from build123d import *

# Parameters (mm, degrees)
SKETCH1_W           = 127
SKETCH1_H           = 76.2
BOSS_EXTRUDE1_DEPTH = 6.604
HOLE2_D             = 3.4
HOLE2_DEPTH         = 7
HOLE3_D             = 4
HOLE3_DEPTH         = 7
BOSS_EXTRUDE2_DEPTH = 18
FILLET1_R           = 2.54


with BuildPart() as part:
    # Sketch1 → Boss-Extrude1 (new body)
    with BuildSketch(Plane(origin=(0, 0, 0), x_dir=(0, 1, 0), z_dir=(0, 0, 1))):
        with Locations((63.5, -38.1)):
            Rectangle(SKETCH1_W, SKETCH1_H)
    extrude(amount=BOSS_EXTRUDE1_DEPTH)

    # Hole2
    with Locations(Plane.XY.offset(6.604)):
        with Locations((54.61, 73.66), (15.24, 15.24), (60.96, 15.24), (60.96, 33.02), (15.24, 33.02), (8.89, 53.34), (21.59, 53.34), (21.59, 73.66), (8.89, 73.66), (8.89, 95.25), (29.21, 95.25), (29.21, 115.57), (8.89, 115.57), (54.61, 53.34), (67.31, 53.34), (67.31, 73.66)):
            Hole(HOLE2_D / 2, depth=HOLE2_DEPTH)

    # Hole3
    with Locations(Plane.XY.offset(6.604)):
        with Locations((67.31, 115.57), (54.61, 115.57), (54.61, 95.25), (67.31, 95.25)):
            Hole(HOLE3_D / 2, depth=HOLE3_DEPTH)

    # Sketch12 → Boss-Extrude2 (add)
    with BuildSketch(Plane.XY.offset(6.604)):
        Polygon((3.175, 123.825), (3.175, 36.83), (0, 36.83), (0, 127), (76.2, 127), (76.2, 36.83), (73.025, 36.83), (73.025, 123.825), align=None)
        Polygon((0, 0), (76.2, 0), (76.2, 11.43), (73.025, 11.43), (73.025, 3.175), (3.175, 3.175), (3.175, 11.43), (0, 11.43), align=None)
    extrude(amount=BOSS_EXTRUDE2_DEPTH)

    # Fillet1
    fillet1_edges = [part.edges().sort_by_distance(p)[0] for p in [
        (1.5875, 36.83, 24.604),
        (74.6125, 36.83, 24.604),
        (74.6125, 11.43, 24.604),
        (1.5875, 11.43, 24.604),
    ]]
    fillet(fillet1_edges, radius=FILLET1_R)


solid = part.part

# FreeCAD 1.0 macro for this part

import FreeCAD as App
import Part
import Sketcher

V = App.Vector
Q = App.Units.Quantity


def edges_at(feature, points):
    """Names of the edges that pass closest to the given points."""
    edges = feature.Shape.Edges
    near = lambda p: min(range(len(edges)), key=lambda i: edges[i].distToShape(Part.Vertex(*p))[0])
    return sorted({f"Edge{near(p) + 1}" for p in points})


def add_polygon(sketch, points):
    """Adds a closed chain of lines whose ends are joined by coincident constraints."""
    first, n = sketch.GeometryCount, len(points)
    for a, b in zip(points, points[1:] + points[:1]):
        sketch.addGeometry(Part.LineSegment(App.Vector(*a, 0), App.Vector(*b, 0)), False)
    for i in range(n):
        sketch.addConstraint(Sketcher.Constraint("Coincident", first + i, 2, first + (i + 1) % n, 1))

doc = App.newDocument("Part")
body = doc.addObject("PartDesign::Body", "Body")

# Sketch on XY plane
sketch1 = body.newObject("Sketcher::SketchObject", "Sketch")
sketch1.AttachmentSupport = (doc.getObject("XY_Plane"), [""])
sketch1.MapMode = "FlatFace"
add_polygon(sketch1, [(0, 0), (76.2, 0), (76.2, 127), (0, 127)])  # lines 0-3
sketch1.addConstraint([
    Sketcher.Constraint("Horizontal", 0),
    Sketcher.Constraint("Vertical", 1),
    Sketcher.Constraint("Horizontal", 2),
    Sketcher.Constraint("Vertical", 3),
    Sketcher.Constraint("Coincident", 3, 2, -1, 1),
    Sketcher.Constraint("DistanceX", 0, 1, 0, 2, Q("3 in")),
    Sketcher.Constraint("DistanceY", 1, 1, 1, 2, Q("5 in")),
])
pad1 = body.newObject("PartDesign::Pad", "Pad")
pad1.Profile = sketch1
pad1.Length = Q("0.26 in")

# Sketch on XY plane
sketch2 = body.newObject("Sketcher::SketchObject", "Sketch001")
sketch2.AttachmentSupport = (doc.getObject("XY_Plane"), [""])
sketch2.MapMode = "FlatFace"
sketch2.AttachmentOffset = App.Placement(V(0, 0, 0.26 * 25.4), App.Rotation())
sketch2.addGeometry([
    Part.Circle(V(54.61, 73.66, 0), V(0, 0, 1), 1.7),  # 0
    Part.Circle(V(15.24, 15.24, 0), V(0, 0, 1), 1.7),  # 1
    Part.Circle(V(60.96, 15.24, 0), V(0, 0, 1), 1.7),  # 2
    Part.Circle(V(60.96, 33.02, 0), V(0, 0, 1), 1.7),  # 3
    Part.Circle(V(15.24, 33.02, 0), V(0, 0, 1), 1.7),  # 4
    Part.Circle(V(8.89, 53.34, 0), V(0, 0, 1), 1.7),  # 5
    Part.Circle(V(21.59, 53.34, 0), V(0, 0, 1), 1.7),  # 6
    Part.Circle(V(21.59, 73.66, 0), V(0, 0, 1), 1.7),  # 7
    Part.Circle(V(8.89, 73.66, 0), V(0, 0, 1), 1.7),  # 8
    Part.Circle(V(8.89, 95.25, 0), V(0, 0, 1), 1.7),  # 9
    Part.Circle(V(29.21, 95.25, 0), V(0, 0, 1), 1.7),  # 10
    Part.Circle(V(29.21, 115.57, 0), V(0, 0, 1), 1.7),  # 11
    Part.Circle(V(8.89, 115.57, 0), V(0, 0, 1), 1.7),  # 12
    Part.Circle(V(54.61, 53.34, 0), V(0, 0, 1), 1.7),  # 13
    Part.Circle(V(67.31, 53.34, 0), V(0, 0, 1), 1.7),  # 14
    Part.Circle(V(67.31, 73.66, 0), V(0, 0, 1), 1.7),  # 15
], False)
sketch2.addConstraint([
    Sketcher.Constraint("Equal", 0, 1),
    Sketcher.Constraint("Equal", 1, 2),
    Sketcher.Constraint("Equal", 2, 3),
    Sketcher.Constraint("Equal", 3, 4),
    Sketcher.Constraint("Equal", 4, 5),
    Sketcher.Constraint("Equal", 5, 6),
    Sketcher.Constraint("Equal", 6, 7),
    Sketcher.Constraint("Equal", 7, 8),
    Sketcher.Constraint("Equal", 8, 9),
    Sketcher.Constraint("Equal", 9, 10),
    Sketcher.Constraint("Equal", 10, 11),
    Sketcher.Constraint("Equal", 11, 12),
    Sketcher.Constraint("Equal", 12, 13),
    Sketcher.Constraint("Equal", 13, 14),
    Sketcher.Constraint("Equal", 14, 15),
    Sketcher.Constraint("Horizontal", 1, 3, 2, 3),
    Sketcher.Constraint("Horizontal", 3, 3, 4, 3),
    Sketcher.Constraint("Horizontal", 5, 3, 6, 3),
    Sketcher.Constraint("Horizontal", 0, 3, 7, 3),
    Sketcher.Constraint("Horizontal", 7, 3, 8, 3),
    Sketcher.Constraint("Horizontal", 9, 3, 10, 3),
    Sketcher.Constraint("Horizontal", 11, 3, 12, 3),
    Sketcher.Constraint("Horizontal", 6, 3, 13, 3),
    Sketcher.Constraint("Horizontal", 13, 3, 14, 3),
    Sketcher.Constraint("Horizontal", 8, 3, 15, 3),
    Sketcher.Constraint("Vertical", 2, 3, 3, 3),
    Sketcher.Constraint("Vertical", 1, 3, 4, 3),
    Sketcher.Constraint("Vertical", 6, 3, 7, 3),
    Sketcher.Constraint("Vertical", 5, 3, 8, 3),
    Sketcher.Constraint("Vertical", 8, 3, 9, 3),
    Sketcher.Constraint("Vertical", 10, 3, 11, 3),
    Sketcher.Constraint("Vertical", 9, 3, 12, 3),
    Sketcher.Constraint("Vertical", 0, 3, 13, 3),
    Sketcher.Constraint("Vertical", 14, 3, 15, 3),
    Sketcher.Constraint("DistanceX", 10, 3, 0, 3, Q("1 in")),
    Sketcher.Constraint("DistanceY", -1, 1, 0, 3, Q("2.9 in")),
    Sketcher.Constraint("DistanceX", -1, 1, 1, 3, Q("0.6 in")),
    Sketcher.Constraint("DistanceY", -1, 1, 1, 3, Q("0.6 in")),
    Sketcher.Constraint("DistanceX", -1, 1, 2, 3, Q("2.4 in")),
    Sketcher.Constraint("DistanceY", -1, 1, 3, 3, Q("1.3 in")),
    Sketcher.Constraint("DistanceY", -1, 1, 5, 3, Q("2.1 in")),
    Sketcher.Constraint("DistanceX", 5, 3, 0, 3, Q("1.8 in")),
    Sketcher.Constraint("DistanceX", 5, 3, 6, 3, Q("0.5 in")),
    Sketcher.Constraint("DistanceY", 10, 3, 11, 3, Q("0.8 in")),
    Sketcher.Constraint("DistanceX", 13, 3, 14, 3, Q("0.5 in")),
    Sketcher.Constraint("Diameter", 0, Q("3.4 mm")),
    Sketcher.Constraint("DistanceX", -1, 1, 0, 3, Q("2.15 in")),
    Sketcher.Constraint("DistanceY", -1, 1, 9, 3, Q("3.75 in")),
])
doc.recompute()
hole = body.newObject("PartDesign::Hole", "Hole")
hole.Profile = sketch2
hole.ThreadType = "None"
hole.Diameter = 3.4
hole.DepthType = "Dimension"
hole.Depth = 7
hole.DrillPoint = "Flat"

# Sketch on XY plane
sketch3 = body.newObject("Sketcher::SketchObject", "Sketch002")
sketch3.AttachmentSupport = (doc.getObject("XY_Plane"), [""])
sketch3.MapMode = "FlatFace"
sketch3.AttachmentOffset = App.Placement(V(0, 0, 0.26 * 25.4), App.Rotation())
sketch3.addGeometry([
    Part.Circle(V(67.31, 115.57, 0), V(0, 0, 1), 2),
    Part.Circle(V(54.61, 115.57, 0), V(0, 0, 1), 2),
    Part.Circle(V(54.61, 95.25, 0), V(0, 0, 1), 2),
    Part.Circle(V(67.31, 95.25, 0), V(0, 0, 1), 2),
], False)
sketch3.addConstraint([
    Sketcher.Constraint("Equal", 0, 1),
    Sketcher.Constraint("Equal", 1, 2),
    Sketcher.Constraint("Equal", 2, 3),
    Sketcher.Constraint("Horizontal", 0, 3, 1, 3),
    Sketcher.Constraint("Horizontal", 2, 3, 3, 3),
    Sketcher.Constraint("Vertical", 1, 3, 2, 3),
    Sketcher.Constraint("Vertical", 0, 3, 3, 3),
    Sketcher.Constraint("DistanceX", 1, 3, 0, 3, Q("0.5 in")),
    Sketcher.Constraint("DistanceY", 2, 3, 1, 3, Q("0.8 in")),
    Sketcher.Constraint("Diameter", 0, Q("4 mm")),
    Sketcher.Constraint("DistanceX", -1, 1, 0, 3, Q("2.65 in")),
    Sketcher.Constraint("DistanceY", -1, 1, 0, 3, Q("4.55 in")),
])
doc.recompute()
hole2 = body.newObject("PartDesign::Hole", "Hole001")
hole2.Profile = sketch3
hole2.ThreadType = "None"
hole2.Diameter = 4
hole2.DepthType = "Dimension"
hole2.Depth = 7
hole2.DrillPoint = "Flat"

# Sketch on XY plane
sketch4 = body.newObject("Sketcher::SketchObject", "Sketch003")
sketch4.AttachmentSupport = (doc.getObject("XY_Plane"), [""])
sketch4.MapMode = "FlatFace"
sketch4.AttachmentOffset = App.Placement(V(0, 0, 0.26 * 25.4), App.Rotation())
add_polygon(sketch4, [(3.175, 36.83), (3.175, 123.825), (73.025, 123.825), (73.025, 36.83), (76.2, 36.83), (76.2, 127), (0, 127), (0, 36.83)])  # lines 0-7
add_polygon(sketch4, [(0, 0), (76.2, 0), (76.2, 11.43), (73.025, 11.43), (73.025, 3.175), (3.175, 3.175), (3.175, 11.43), (0, 11.43)])  # lines 8-15
sketch4.addConstraint([
    Sketcher.Constraint("Vertical", 0),
    Sketcher.Constraint("Horizontal", 1),
    Sketcher.Constraint("Vertical", 2),
    Sketcher.Constraint("Horizontal", 3),
    Sketcher.Constraint("Vertical", 4),
    Sketcher.Constraint("Horizontal", 5),
    Sketcher.Constraint("Vertical", 6),
    Sketcher.Constraint("Horizontal", 7),
    Sketcher.Constraint("Horizontal", 8),
    Sketcher.Constraint("Vertical", 9),
    Sketcher.Constraint("Horizontal", 10),
    Sketcher.Constraint("Vertical", 11),
    Sketcher.Constraint("Horizontal", 12),
    Sketcher.Constraint("Vertical", 13),
    Sketcher.Constraint("Horizontal", 14),
    Sketcher.Constraint("Vertical", 15),
    Sketcher.Constraint("Coincident", 15, 2, -1, 1),
    Sketcher.Constraint("PointOnObject", 5, 2, -2),
    Sketcher.Constraint("Horizontal", 3, 2, 6, 2),
    Sketcher.Constraint("Horizontal", 10, 2, 13, 2),
    Sketcher.Constraint("Vertical", 4, 2, 8, 2),
    Sketcher.Constraint("Vertical", 2, 2, 10, 2),
    Sketcher.Constraint("Vertical", 7, 2, 12, 2),
    Sketcher.Constraint("Equal", 3, 7),
    Sketcher.Constraint("DistanceX", 5, 2, 5, 1, Q("3 in")),
    Sketcher.Constraint("DistanceY", -1, 1, 4, 2, Q("5 in")),
    Sketcher.Constraint("DistanceY", 9, 2, 3, 2, Q("1 in")),
    Sketcher.Constraint("DistanceX", 1, 1, 1, 2, Q("2.75 in")),
    Sketcher.Constraint("DistanceY", 4, 1, 4, 2, Q("3.55 in")),
    Sketcher.Constraint("DistanceY", 0, 1, 0, 2, Q("3.425 in")),
    Sketcher.Constraint("DistanceY", 11, 2, 11, 1, Q("0.325 in")),
])
pad2 = body.newObject("PartDesign::Pad", "Pad001")
pad2.Profile = sketch4
pad2.Length = 18
doc.recompute()

fillet = body.newObject("PartDesign::Fillet", "Fillet")
fillet.Base = (pad2, edges_at(pad2, [
    (1.587, 36.83, 24.604),
    (74.612, 36.83, 24.604),
    (74.612, 11.43, 24.604),
    (1.587, 11.43, 24.604),
]))
fillet.Radius = Q("0.1 in")

doc.recompute()
